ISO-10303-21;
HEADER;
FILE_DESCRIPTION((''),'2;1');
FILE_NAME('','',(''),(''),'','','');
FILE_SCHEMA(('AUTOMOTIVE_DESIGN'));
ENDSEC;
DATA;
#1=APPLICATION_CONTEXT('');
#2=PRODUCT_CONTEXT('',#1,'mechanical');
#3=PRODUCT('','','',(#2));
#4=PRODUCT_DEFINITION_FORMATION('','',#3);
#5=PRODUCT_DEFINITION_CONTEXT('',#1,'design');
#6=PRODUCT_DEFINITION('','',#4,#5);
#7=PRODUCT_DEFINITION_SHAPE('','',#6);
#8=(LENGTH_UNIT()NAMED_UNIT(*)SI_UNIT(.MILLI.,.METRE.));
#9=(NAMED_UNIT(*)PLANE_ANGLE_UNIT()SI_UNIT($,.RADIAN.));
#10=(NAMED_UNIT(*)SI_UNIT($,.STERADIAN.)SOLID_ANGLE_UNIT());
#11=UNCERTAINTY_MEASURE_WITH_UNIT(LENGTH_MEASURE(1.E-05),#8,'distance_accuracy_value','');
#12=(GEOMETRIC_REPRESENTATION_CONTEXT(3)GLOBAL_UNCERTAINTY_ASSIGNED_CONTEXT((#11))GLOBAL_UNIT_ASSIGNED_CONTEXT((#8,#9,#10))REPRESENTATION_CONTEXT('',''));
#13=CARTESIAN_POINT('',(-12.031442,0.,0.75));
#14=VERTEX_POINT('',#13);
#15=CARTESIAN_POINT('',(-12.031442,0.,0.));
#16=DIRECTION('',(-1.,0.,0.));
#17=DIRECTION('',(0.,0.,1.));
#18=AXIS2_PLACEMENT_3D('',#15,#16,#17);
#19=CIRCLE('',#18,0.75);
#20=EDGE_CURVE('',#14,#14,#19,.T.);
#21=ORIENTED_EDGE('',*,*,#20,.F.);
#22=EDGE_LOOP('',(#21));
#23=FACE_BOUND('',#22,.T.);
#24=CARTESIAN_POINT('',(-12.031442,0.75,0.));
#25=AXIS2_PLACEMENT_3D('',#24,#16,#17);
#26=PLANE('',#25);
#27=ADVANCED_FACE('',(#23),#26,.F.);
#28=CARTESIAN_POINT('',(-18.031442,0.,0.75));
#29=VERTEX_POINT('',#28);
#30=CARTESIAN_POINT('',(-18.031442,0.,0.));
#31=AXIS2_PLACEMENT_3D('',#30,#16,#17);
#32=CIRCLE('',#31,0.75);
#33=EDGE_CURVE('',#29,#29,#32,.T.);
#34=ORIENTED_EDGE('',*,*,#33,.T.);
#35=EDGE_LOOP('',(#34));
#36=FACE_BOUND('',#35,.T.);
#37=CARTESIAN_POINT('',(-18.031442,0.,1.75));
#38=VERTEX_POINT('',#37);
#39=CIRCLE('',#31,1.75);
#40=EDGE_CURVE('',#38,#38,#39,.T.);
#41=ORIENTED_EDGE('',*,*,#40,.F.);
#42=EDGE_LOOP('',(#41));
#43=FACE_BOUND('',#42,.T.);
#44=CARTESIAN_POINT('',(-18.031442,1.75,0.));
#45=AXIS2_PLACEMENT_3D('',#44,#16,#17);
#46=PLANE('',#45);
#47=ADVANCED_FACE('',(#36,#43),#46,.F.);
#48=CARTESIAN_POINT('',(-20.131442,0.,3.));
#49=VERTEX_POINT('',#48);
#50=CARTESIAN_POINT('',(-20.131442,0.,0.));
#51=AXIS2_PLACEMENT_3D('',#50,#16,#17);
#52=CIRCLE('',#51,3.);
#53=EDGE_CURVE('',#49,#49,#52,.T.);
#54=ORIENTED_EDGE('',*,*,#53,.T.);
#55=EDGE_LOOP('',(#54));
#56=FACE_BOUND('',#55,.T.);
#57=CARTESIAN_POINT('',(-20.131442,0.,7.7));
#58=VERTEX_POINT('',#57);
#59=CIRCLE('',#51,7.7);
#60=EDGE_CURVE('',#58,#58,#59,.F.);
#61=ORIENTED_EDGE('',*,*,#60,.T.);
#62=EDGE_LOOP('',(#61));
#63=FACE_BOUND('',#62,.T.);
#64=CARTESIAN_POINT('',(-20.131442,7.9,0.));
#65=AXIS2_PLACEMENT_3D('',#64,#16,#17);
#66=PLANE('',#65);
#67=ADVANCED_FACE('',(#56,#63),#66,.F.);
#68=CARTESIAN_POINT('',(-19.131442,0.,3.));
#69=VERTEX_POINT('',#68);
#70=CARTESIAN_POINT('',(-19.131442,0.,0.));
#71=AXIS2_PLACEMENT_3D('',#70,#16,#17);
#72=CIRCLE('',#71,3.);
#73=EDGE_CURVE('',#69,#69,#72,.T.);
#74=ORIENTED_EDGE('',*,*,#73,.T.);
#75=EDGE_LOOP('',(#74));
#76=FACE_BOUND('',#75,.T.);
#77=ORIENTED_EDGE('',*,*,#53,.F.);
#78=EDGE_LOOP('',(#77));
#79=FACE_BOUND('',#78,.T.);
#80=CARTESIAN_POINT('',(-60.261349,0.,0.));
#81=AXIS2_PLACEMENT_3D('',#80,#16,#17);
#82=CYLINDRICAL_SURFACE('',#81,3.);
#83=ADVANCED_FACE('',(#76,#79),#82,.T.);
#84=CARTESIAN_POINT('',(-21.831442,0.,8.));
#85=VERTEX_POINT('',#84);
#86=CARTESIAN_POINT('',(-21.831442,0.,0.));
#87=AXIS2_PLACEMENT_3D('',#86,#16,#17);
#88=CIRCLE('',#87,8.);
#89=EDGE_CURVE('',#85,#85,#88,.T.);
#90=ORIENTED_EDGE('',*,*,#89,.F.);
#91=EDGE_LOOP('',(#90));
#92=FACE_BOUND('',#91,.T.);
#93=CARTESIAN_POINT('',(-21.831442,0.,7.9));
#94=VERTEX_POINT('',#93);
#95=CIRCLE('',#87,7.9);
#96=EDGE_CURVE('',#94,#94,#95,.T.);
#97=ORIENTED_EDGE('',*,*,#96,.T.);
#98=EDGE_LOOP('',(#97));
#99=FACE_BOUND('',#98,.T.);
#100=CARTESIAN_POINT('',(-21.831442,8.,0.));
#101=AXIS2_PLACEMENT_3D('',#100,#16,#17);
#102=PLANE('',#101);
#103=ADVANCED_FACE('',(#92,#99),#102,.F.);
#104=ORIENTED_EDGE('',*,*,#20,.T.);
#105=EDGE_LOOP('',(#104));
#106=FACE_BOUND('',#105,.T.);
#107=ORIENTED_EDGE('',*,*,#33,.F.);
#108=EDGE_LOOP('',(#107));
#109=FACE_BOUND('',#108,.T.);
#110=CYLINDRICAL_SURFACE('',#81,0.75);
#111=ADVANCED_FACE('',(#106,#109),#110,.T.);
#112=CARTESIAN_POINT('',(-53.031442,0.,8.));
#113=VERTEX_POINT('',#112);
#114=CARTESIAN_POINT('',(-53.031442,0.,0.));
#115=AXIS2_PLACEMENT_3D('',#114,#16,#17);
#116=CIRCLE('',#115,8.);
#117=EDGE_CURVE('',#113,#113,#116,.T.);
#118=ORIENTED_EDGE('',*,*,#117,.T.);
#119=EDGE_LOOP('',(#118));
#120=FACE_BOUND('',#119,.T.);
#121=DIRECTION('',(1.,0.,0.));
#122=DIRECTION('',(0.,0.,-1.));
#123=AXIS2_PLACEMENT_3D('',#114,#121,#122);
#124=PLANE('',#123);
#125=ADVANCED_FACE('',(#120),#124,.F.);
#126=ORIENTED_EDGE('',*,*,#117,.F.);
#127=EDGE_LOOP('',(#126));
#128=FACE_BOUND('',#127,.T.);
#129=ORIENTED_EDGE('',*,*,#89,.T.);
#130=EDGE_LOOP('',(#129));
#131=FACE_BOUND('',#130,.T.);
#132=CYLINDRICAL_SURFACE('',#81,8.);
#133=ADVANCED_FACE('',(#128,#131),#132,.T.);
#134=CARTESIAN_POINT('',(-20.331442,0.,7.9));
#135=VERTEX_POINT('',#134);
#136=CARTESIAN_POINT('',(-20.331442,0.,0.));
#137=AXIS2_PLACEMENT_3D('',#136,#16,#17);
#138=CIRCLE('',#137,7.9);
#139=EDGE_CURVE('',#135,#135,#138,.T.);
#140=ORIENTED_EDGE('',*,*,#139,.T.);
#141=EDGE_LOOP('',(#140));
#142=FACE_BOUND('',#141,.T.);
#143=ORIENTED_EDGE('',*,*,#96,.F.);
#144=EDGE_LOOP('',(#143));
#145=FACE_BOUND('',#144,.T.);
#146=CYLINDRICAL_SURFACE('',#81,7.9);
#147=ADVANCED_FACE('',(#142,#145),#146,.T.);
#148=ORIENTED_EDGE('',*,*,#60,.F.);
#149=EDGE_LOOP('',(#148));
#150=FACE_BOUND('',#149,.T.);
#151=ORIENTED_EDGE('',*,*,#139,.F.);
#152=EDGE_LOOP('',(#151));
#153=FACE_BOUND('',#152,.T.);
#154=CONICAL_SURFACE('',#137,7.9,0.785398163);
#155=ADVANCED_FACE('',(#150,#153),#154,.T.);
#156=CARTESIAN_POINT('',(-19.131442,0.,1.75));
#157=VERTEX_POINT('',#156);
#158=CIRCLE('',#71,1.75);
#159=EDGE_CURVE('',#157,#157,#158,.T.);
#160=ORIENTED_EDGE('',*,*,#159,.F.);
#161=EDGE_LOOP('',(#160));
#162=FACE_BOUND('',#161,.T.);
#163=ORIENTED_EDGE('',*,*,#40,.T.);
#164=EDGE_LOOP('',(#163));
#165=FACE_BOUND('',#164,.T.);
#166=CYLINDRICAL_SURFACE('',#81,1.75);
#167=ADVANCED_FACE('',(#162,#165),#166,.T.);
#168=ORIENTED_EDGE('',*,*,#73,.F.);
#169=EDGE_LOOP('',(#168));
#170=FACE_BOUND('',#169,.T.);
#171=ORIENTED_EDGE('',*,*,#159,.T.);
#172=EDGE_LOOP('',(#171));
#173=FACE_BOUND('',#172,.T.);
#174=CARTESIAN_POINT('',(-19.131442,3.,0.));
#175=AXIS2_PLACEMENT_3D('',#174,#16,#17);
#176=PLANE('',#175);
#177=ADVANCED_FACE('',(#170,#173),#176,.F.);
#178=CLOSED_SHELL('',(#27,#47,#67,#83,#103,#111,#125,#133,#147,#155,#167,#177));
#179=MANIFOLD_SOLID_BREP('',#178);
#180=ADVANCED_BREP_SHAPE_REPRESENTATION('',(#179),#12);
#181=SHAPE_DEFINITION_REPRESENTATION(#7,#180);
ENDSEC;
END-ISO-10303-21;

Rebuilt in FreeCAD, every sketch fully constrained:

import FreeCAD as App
import Part
import Sketcher
Q = App.Units.Quantity


def edges_at(feature, points):
    """Names of the edges that pass closest to the given points."""
    edges = feature.Shape.Edges
    near = lambda p: min(range(len(edges)), key=lambda i: edges[i].distToShape(Part.Vertex(*p))[0])
    return sorted({f"Edge{near(p) + 1}" for p in points})

doc = App.newDocument("Part")
body = doc.addObject("PartDesign::Body", "Body")

sketch1 = doc.addObject("Sketcher::SketchObject", "Sketch")
body.addObject(sketch1)
sketch1.AttachmentSupport = (doc.XY_Plane, [""])
sketch1.MapMode = "FlatFace"
sketch1.addGeometry(Part.LineSegment(App.Vector(-53.03, 8, 0), App.Vector(-53.03, 0, 0)), False)
sketch1.addGeometry(Part.LineSegment(App.Vector(-53.03, 0, 0), App.Vector(-12.03, 0, 0)), False)
sketch1.addGeometry(Part.LineSegment(App.Vector(-12.03, 0, 0), App.Vector(-12.03, 0.75, 0)), False)
sketch1.addGeometry(Part.LineSegment(App.Vector(-12.03, 0.75, 0), App.Vector(-18.03, 0.75, 0)), False)
sketch1.addGeometry(Part.LineSegment(App.Vector(-18.03, 0.75, 0), App.Vector(-18.03, 1.75, 0)), False)
sketch1.addGeometry(Part.LineSegment(App.Vector(-18.03, 1.75, 0), App.Vector(-19.13, 1.75, 0)), False)
sketch1.addGeometry(Part.LineSegment(App.Vector(-19.13, 1.75, 0), App.Vector(-19.13, 3, 0)), False)
sketch1.addGeometry(Part.LineSegment(App.Vector(-19.13, 3, 0), App.Vector(-20.13, 3, 0)), False)
sketch1.addGeometry(Part.LineSegment(App.Vector(-20.13, 3, 0), App.Vector(-20.13, 7.9, 0)), False)
sketch1.addGeometry(Part.LineSegment(App.Vector(-20.13, 7.9, 0), App.Vector(-21.83, 7.9, 0)), False)
sketch1.addGeometry(Part.LineSegment(App.Vector(-21.83, 7.9, 0), App.Vector(-21.83, 8, 0)), False)
sketch1.addGeometry(Part.LineSegment(App.Vector(-21.83, 8, 0), App.Vector(-53.03, 8, 0)), False)
sketch1.addConstraint(Sketcher.Constraint("Coincident", 0, 2, 1, 1))
sketch1.addConstraint(Sketcher.Constraint("Coincident", 1, 2, 2, 1))
sketch1.addConstraint(Sketcher.Constraint("Coincident", 2, 2, 3, 1))
sketch1.addConstraint(Sketcher.Constraint("Coincident", 3, 2, 4, 1))
sketch1.addConstraint(Sketcher.Constraint("Coincident", 4, 2, 5, 1))
sketch1.addConstraint(Sketcher.Constraint("Coincident", 5, 2, 6, 1))
sketch1.addConstraint(Sketcher.Constraint("Coincident", 6, 2, 7, 1))
sketch1.addConstraint(Sketcher.Constraint("Coincident", 7, 2, 8, 1))
sketch1.addConstraint(Sketcher.Constraint("Coincident", 8, 2, 9, 1))
sketch1.addConstraint(Sketcher.Constraint("Coincident", 9, 2, 10, 1))
sketch1.addConstraint(Sketcher.Constraint("Coincident", 10, 2, 11, 1))
sketch1.addConstraint(Sketcher.Constraint("Coincident", 11, 2, 0, 1))
sketch1.addConstraint(Sketcher.Constraint("Vertical", 0))
sketch1.addConstraint(Sketcher.Constraint("Horizontal", 1))
sketch1.addConstraint(Sketcher.Constraint("Vertical", 2))
sketch1.addConstraint(Sketcher.Constraint("Horizontal", 3))
sketch1.addConstraint(Sketcher.Constraint("Vertical", 4))
sketch1.addConstraint(Sketcher.Constraint("Horizontal", 5))
sketch1.addConstraint(Sketcher.Constraint("Vertical", 6))
sketch1.addConstraint(Sketcher.Constraint("Horizontal", 7))
sketch1.addConstraint(Sketcher.Constraint("Vertical", 8))
sketch1.addConstraint(Sketcher.Constraint("Horizontal", 9))
sketch1.addConstraint(Sketcher.Constraint("Vertical", 10))
sketch1.addConstraint(Sketcher.Constraint("Horizontal", 11))
sketch1.addConstraint(Sketcher.Constraint("PointOnObject", 0, 2, -1))
sketch1.addConstraint(Sketcher.Constraint("Equal", 7, 4))
sketch1.addConstraint(Sketcher.Constraint("DistanceX", 1, 1, 1, 2, Q("41 mm")))
sketch1.addConstraint(Sketcher.Constraint("DistanceX", 3, 2, 3, 1, Q("6 mm")))
sketch1.addConstraint(Sketcher.Constraint("DistanceX", 7, 2, 7, 1, Q("1 mm")))
sketch1.addConstraint(Sketcher.Constraint("DistanceY", 0, 2, 0, 1, Q("8 mm")))
sketch1.addConstraint(Sketcher.Constraint("DistanceX", 5, 2, 5, 1, Q("1.1 mm")))
sketch1.addConstraint(Sketcher.Constraint("DistanceX", 9, 2, 9, 1, Q("1.7 mm")))
sketch1.addConstraint(Sketcher.Constraint("DistanceY", 8, 1, 8, 2, Q("4.9 mm")))
sketch1.addConstraint(Sketcher.Constraint("DistanceY", 10, 1, 10, 2, Q("0.1 mm")))
sketch1.addConstraint(Sketcher.Constraint("DistanceY", 2, 1, 2, 2, Q("0.75 mm")))
sketch1.addConstraint(Sketcher.Constraint("DistanceX", 0, 2, -1, 1, Q("53.031442 mm")))
revolution = doc.addObject("PartDesign::Revolution", "Revolution")
body.addObject(revolution)
revolution.Profile = sketch1
revolution.ReferenceAxis = (sketch1, ["H_Axis"])
revolution.Angle = 360
doc.recompute()

chamfer = doc.addObject("PartDesign::Chamfer", "Chamfer")
body.addObject(chamfer)
chamfer.Base = (revolution, edges_at(revolution, [(-20.131, 0, -7.9)]))
chamfer.Size = 0.2

doc.recompute()
